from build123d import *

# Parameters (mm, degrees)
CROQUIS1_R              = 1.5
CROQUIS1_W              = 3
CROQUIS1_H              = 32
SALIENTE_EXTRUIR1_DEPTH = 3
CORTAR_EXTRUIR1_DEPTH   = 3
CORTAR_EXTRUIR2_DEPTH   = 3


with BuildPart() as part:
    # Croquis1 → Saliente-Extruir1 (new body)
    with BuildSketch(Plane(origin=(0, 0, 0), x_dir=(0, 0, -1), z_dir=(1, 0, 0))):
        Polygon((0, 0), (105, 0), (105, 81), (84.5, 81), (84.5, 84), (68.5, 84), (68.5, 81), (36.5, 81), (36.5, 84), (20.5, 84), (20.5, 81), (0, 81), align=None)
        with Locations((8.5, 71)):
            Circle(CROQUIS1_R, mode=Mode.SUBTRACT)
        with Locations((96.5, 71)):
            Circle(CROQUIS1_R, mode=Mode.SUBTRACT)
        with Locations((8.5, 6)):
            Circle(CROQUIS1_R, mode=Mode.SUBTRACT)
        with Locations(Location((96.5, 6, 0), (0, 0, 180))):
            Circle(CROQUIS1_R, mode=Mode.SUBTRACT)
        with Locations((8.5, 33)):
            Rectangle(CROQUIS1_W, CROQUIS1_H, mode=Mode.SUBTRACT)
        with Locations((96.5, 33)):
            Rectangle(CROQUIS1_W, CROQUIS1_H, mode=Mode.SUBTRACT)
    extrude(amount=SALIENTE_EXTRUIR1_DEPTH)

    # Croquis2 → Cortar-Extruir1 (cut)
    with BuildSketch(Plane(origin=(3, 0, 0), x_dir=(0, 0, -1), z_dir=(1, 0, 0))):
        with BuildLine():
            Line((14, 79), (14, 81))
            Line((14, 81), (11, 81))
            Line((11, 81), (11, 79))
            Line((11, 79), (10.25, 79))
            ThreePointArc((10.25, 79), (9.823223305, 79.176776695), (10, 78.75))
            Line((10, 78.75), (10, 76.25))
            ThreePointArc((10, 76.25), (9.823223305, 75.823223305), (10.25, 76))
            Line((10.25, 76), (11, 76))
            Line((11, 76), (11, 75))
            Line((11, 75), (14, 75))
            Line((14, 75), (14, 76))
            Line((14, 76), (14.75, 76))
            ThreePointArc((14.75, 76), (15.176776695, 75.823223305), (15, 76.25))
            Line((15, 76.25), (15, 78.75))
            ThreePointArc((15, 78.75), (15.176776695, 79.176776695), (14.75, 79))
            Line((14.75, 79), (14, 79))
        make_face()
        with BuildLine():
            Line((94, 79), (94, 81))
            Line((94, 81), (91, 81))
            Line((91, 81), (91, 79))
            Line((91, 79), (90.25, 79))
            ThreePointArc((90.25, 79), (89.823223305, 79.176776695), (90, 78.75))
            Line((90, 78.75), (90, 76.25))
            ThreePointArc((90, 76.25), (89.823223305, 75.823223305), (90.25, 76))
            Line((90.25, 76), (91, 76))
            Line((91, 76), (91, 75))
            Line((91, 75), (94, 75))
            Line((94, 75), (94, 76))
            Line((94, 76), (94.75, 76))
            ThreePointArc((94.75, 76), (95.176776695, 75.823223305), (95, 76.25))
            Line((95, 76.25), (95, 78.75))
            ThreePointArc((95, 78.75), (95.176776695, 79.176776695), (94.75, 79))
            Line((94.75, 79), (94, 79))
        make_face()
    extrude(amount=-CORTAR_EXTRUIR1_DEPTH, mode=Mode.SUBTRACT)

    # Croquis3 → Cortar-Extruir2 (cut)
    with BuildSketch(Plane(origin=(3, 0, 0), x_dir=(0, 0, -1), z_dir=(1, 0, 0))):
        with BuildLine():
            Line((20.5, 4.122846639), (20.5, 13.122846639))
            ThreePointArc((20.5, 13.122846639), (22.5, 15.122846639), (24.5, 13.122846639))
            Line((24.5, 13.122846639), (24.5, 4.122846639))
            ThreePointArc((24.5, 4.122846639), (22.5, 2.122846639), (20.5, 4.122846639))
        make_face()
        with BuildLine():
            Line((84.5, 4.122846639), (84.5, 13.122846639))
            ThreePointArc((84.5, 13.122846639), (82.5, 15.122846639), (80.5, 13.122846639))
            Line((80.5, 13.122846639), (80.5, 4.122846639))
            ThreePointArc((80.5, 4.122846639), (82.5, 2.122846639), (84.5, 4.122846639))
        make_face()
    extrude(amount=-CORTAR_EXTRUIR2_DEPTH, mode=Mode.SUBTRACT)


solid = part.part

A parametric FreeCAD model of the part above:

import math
import FreeCAD as App
import Part
import Sketcher

doc = App.newDocument("Part")
body = doc.addObject("PartDesign::Body", "Body")

sketch1 = body.newObject("Sketcher::SketchObject", "Sketch")
sketch1.AttachmentSupport = (doc.getObject("YZ_Plane"), [""])
sketch1.MapMode = "FlatFace"
sketch1.addGeometry([
    Part.LineSegment(App.Vector(0, 0, 0), App.Vector(0, -105, 0)),
    Part.LineSegment(App.Vector(0, -105, 0), App.Vector(81, -105, 0)),
    Part.LineSegment(App.Vector(81, -105, 0), App.Vector(81, -84.5, 0)),
    Part.LineSegment(App.Vector(81, -84.5, 0), App.Vector(84, -84.5, 0)),
    Part.LineSegment(App.Vector(84, -84.5, 0), App.Vector(84, -68.5, 0)),
    Part.LineSegment(App.Vector(84, -68.5, 0), App.Vector(81, -68.5, 0)),
    Part.LineSegment(App.Vector(81, -68.5, 0), App.Vector(81, -36.5, 0)),
    Part.LineSegment(App.Vector(81, -36.5, 0), App.Vector(84, -36.5, 0)),
    Part.LineSegment(App.Vector(84, -36.5, 0), App.Vector(84, -20.5, 0)),
    Part.LineSegment(App.Vector(84, -20.5, 0), App.Vector(81, -20.5, 0)),
    Part.LineSegment(App.Vector(81, -20.5, 0), App.Vector(81, 0, 0)),
    Part.LineSegment(App.Vector(81, 0, 0), App.Vector(0, 0, 0)),
    Part.Circle(App.Vector(6, -8.5, 0), App.Vector(0, 0, 1), 1.5),
    Part.LineSegment(App.Vector(17, -10, 0), App.Vector(17, -7, 0)),
    Part.LineSegment(App.Vector(17, -7, 0), App.Vector(49, -7, 0)),
    Part.LineSegment(App.Vector(49, -7, 0), App.Vector(49, -10, 0)),
    Part.LineSegment(App.Vector(49, -10, 0), App.Vector(17, -10, 0)),
    Part.Circle(App.Vector(6, -96.5, 0), App.Vector(0, 0, 1), 1.5),
    Part.LineSegment(App.Vector(17, -98, 0), App.Vector(17, -95, 0)),
    Part.LineSegment(App.Vector(17, -95, 0), App.Vector(49, -95, 0)),
    Part.LineSegment(App.Vector(49, -95, 0), App.Vector(49, -98, 0)),
    Part.LineSegment(App.Vector(49, -98, 0), App.Vector(17, -98, 0)),
    Part.Circle(App.Vector(71, -8.5, 0), App.Vector(0, 0, 1), 1.5),
    Part.Circle(App.Vector(71, -96.5, 0), App.Vector(0, 0, 1), 1.5),
], False)
sketch1.addConstraint([
    Sketcher.Constraint("Coincident", 0, 2, 1, 1),
    Sketcher.Constraint("Coincident", 1, 2, 2, 1),
    Sketcher.Constraint("Coincident", 2, 2, 3, 1),
    Sketcher.Constraint("Coincident", 3, 2, 4, 1),
    Sketcher.Constraint("Coincident", 4, 2, 5, 1),
    Sketcher.Constraint("Coincident", 5, 2, 6, 1),
    Sketcher.Constraint("Coincident", 6, 2, 7, 1),
    Sketcher.Constraint("Coincident", 7, 2, 8, 1),
    Sketcher.Constraint("Coincident", 8, 2, 9, 1),
    Sketcher.Constraint("Coincident", 9, 2, 10, 1),
    Sketcher.Constraint("Coincident", 10, 2, 11, 1),
    Sketcher.Constraint("Coincident", 11, 2, 0, 1),
    Sketcher.Constraint("Coincident", 13, 2, 14, 1),
    Sketcher.Constraint("Coincident", 14, 2, 15, 1),
    Sketcher.Constraint("Coincident", 15, 2, 16, 1),
    Sketcher.Constraint("Coincident", 16, 2, 13, 1),
    Sketcher.Constraint("Coincident", 18, 2, 19, 1),
    Sketcher.Constraint("Coincident", 19, 2, 20, 1),
    Sketcher.Constraint("Coincident", 20, 2, 21, 1),
    Sketcher.Constraint("Coincident", 21, 2, 18, 1),
    Sketcher.Constraint("Vertical", 0),
    Sketcher.Constraint("Horizontal", 1),
    Sketcher.Constraint("Vertical", 2),
    Sketcher.Constraint("Horizontal", 3),
    Sketcher.Constraint("Vertical", 4),
    Sketcher.Constraint("Horizontal", 5),
    Sketcher.Constraint("Vertical", 6),
    Sketcher.Constraint("Horizontal", 7),
    Sketcher.Constraint("Vertical", 8),
    Sketcher.Constraint("Horizontal", 9),
    Sketcher.Constraint("Vertical", 10),
    Sketcher.Constraint("Horizontal", 11),
    Sketcher.Constraint("Vertical", 13),
    Sketcher.Constraint("Horizontal", 14),
    Sketcher.Constraint("Vertical", 15),
    Sketcher.Constraint("Horizontal", 16),
    Sketcher.Constraint("Vertical", 18),
    Sketcher.Constraint("Horizontal", 19),
    Sketcher.Constraint("Vertical", 20),
    Sketcher.Constraint("Horizontal", 21),
    Sketcher.Constraint("Coincident", 11, 2, -1, 1),
    Sketcher.Constraint("Equal", 12, 17),
    Sketcher.Constraint("Equal", 17, 22),
    Sketcher.Constraint("Equal", 22, 23),
    Sketcher.Constraint("Horizontal", 12, 3, 22, 3),
    Sketcher.Constraint("Horizontal", 17, 3, 23, 3),
    Sketcher.Constraint("Vertical", 12, 3, 17, 3),
    Sketcher.Constraint("Vertical", 22, 3, 23, 3),
    Sketcher.Constraint("Vertical", 2, 2, 5, 2),
    Sketcher.Constraint("Vertical", 4, 2, 7, 2),
    Sketcher.Constraint("Vertical", 6, 2, 9, 2),
    Sketcher.Constraint("Vertical", 16, 2, 18, 2),
    Sketcher.Constraint("Vertical", 15, 2, 19, 2),
    Sketcher.Constraint("Equal", 21, 6),
    Sketcher.Constraint("Equal", 4, 8),
    Sketcher.Constraint("Equal", 2, 10),
    Sketcher.Constraint("Equal", 9, 13),
    Sketcher.Constraint("Equal", 15, 18),
    Sketcher.Constraint("Diameter", 12, 3.0),
    Sketcher.Constraint("DistanceX", 1, 1, 1, 2, 81.0),
    Sketcher.Constraint("DistanceX", 3, 1, 3, 2, 3.0),
    Sketcher.Constraint("DistanceX", 14, 1, 14, 2, 32.0),
    Sketcher.Constraint("DistanceY", 0, 2, 0, 1, 105.0),
    Sketcher.Constraint("DistanceY", 4, 1, 4, 2, 16.0),
    Sketcher.Constraint("DistanceX", -1, 1, 12, 3, 6.0),
    Sketcher.Constraint("DistanceX", -1, 1, 22, 3, 71.0),
    Sketcher.Constraint("DistanceX", -1, 1, 13, 2, 17.0),
    Sketcher.Constraint("DistanceY", 13, 2, -1, 1, 7.0),
    Sketcher.Constraint("DistanceY", 18, 2, -1, 1, 95.0),
    Sketcher.Constraint("DistanceY", 17, 3, 12, 3, 88.0),
    Sketcher.Constraint("DistanceY", 23, 3, 2, 2, 12.0),
])
pad1 = body.newObject("PartDesign::Pad", "Pad")
pad1.Profile = sketch1
pad1.Length = 3

sketch2 = body.newObject("Sketcher::SketchObject", "Sketch001")
sketch2.AttachmentSupport = (doc.getObject("YZ_Plane"), [""])
sketch2.MapMode = "FlatFace"
sketch2.AttachmentOffset = App.Placement(App.Vector(0, 0, 3), App.Rotation())
sketch2.addGeometry([
    Part.LineSegment(App.Vector(79, -14, 0), App.Vector(81, -14, 0)),
    Part.LineSegment(App.Vector(81, -14, 0), App.Vector(81, -11, 0)),
    Part.LineSegment(App.Vector(81, -11, 0), App.Vector(79, -11, 0)),
    Part.LineSegment(App.Vector(79, -11, 0), App.Vector(79, -10.25, 0)),
    Part.ArcOfCircle(Part.Circle(App.Vector(79, -10, 0), App.Vector(0, 0, 1), 0.25), math.radians(-90), math.radians(180)),
    Part.LineSegment(App.Vector(78.75, -10, 0), App.Vector(76.25, -10, 0)),
    Part.ArcOfCircle(Part.Circle(App.Vector(76, -10, 0), App.Vector(0, 0, 1), 0.25), math.radians(0), math.radians(270)),
    Part.LineSegment(App.Vector(76, -10.25, 0), App.Vector(76, -11, 0)),
    Part.LineSegment(App.Vector(76, -11, 0), App.Vector(75, -11, 0)),
    Part.LineSegment(App.Vector(75, -11, 0), App.Vector(75, -14, 0)),
    Part.LineSegment(App.Vector(75, -14, 0), App.Vector(76, -14, 0)),
    Part.LineSegment(App.Vector(76, -14, 0), App.Vector(76, -14.75, 0)),
    Part.ArcOfCircle(Part.Circle(App.Vector(76, -15, 0), App.Vector(0, 0, 1), 0.25), math.radians(90), math.radians(360)),
    Part.LineSegment(App.Vector(76.25, -15, 0), App.Vector(78.75, -15, 0)),
    Part.ArcOfCircle(Part.Circle(App.Vector(79, -15, 0), App.Vector(0, 0, 1), 0.25), math.radians(180), math.radians(450)),
    Part.LineSegment(App.Vector(79, -14.75, 0), App.Vector(79, -14, 0)),
    Part.LineSegment(App.Vector(79, -94, 0), App.Vector(81, -94, 0)),
    Part.LineSegment(App.Vector(81, -94, 0), App.Vector(81, -91, 0)),
    Part.LineSegment(App.Vector(81, -91, 0), App.Vector(79, -91, 0)),
    Part.LineSegment(App.Vector(79, -91, 0), App.Vector(79, -90.25, 0)),
    Part.ArcOfCircle(Part.Circle(App.Vector(79, -90, 0), App.Vector(0, 0, 1), 0.25), math.radians(-90), math.radians(180)),
    Part.LineSegment(App.Vector(78.75, -90, 0), App.Vector(76.25, -90, 0)),
    Part.ArcOfCircle(Part.Circle(App.Vector(76, -90, 0), App.Vector(0, 0, 1), 0.25), math.radians(0), math.radians(270)),
    Part.LineSegment(App.Vector(76, -90.25, 0), App.Vector(76, -91, 0)),
    Part.LineSegment(App.Vector(76, -91, 0), App.Vector(75, -91, 0)),
    Part.LineSegment(App.Vector(75, -91, 0), App.Vector(75, -94, 0)),
    Part.LineSegment(App.Vector(75, -94, 0), App.Vector(76, -94, 0)),
    Part.LineSegment(App.Vector(76, -94, 0), App.Vector(76, -94.75, 0)),
    Part.ArcOfCircle(Part.Circle(App.Vector(76, -95, 0), App.Vector(0, 0, 1), 0.25), math.radians(90), math.radians(360)),
    Part.LineSegment(App.Vector(76.25, -95, 0), App.Vector(78.75, -95, 0)),
    Part.ArcOfCircle(Part.Circle(App.Vector(79, -95, 0), App.Vector(0, 0, 1), 0.25), math.radians(180), math.radians(450)),
    Part.LineSegment(App.Vector(79, -94.75, 0), App.Vector(79, -94, 0)),
], False)
sketch2.addConstraint([
    Sketcher.Constraint("Coincident", 0, 2, 1, 1),
    Sketcher.Constraint("Coincident", 1, 2, 2, 1),
    Sketcher.Constraint("Coincident", 2, 2, 3, 1),
    Sketcher.Constraint("Coincident", 3, 2, 4, 1),
    Sketcher.Constraint("Coincident", 4, 2, 5, 1),
    Sketcher.Constraint("Coincident", 5, 2, 6, 1),
    Sketcher.Constraint("Coincident", 6, 2, 7, 1),
    Sketcher.Constraint("Coincident", 7, 2, 8, 1),
    Sketcher.Constraint("Coincident", 8, 2, 9, 1),
    Sketcher.Constraint("Coincident", 9, 2, 10, 1),
    Sketcher.Constraint("Coincident", 10, 2, 11, 1),
    Sketcher.Constraint("Coincident", 11, 2, 12, 1),
    Sketcher.Constraint("Coincident", 12, 2, 13, 1),
    Sketcher.Constraint("Coincident", 13, 2, 14, 1),
    Sketcher.Constraint("Coincident", 14, 2, 15, 1),
    Sketcher.Constraint("Coincident", 15, 2, 0, 1),
    Sketcher.Constraint("Coincident", 16, 2, 17, 1),
    Sketcher.Constraint("Coincident", 17, 2, 18, 1),
    Sketcher.Constraint("Coincident", 18, 2, 19, 1),
    Sketcher.Constraint("Coincident", 19, 2, 20, 1),
    Sketcher.Constraint("Coincident", 20, 2, 21, 1),
    Sketcher.Constraint("Coincident", 21, 2, 22, 1),
    Sketcher.Constraint("Coincident", 22, 2, 23, 1),
    Sketcher.Constraint("Coincident", 23, 2, 24, 1),
    Sketcher.Constraint("Coincident", 24, 2, 25, 1),
    Sketcher.Constraint("Coincident", 25, 2, 26, 1),
    Sketcher.Constraint("Coincident", 26, 2, 27, 1),
    Sketcher.Constraint("Coincident", 27, 2, 28, 1),
    Sketcher.Constraint("Coincident", 28, 2, 29, 1),
    Sketcher.Constraint("Coincident", 29, 2, 30, 1),
    Sketcher.Constraint("Coincident", 30, 2, 31, 1),
    Sketcher.Constraint("Coincident", 31, 2, 16, 1),
    Sketcher.Constraint("Horizontal", 0),
    Sketcher.Constraint("Vertical", 1),
    Sketcher.Constraint("Horizontal", 2),
    Sketcher.Constraint("Vertical", 3),
    Sketcher.Constraint("Horizontal", 5),
    Sketcher.Constraint("Vertical", 7),
    Sketcher.Constraint("Horizontal", 8),
    Sketcher.Constraint("Vertical", 9),
    Sketcher.Constraint("Horizontal", 10),
    Sketcher.Constraint("Vertical", 11),
    Sketcher.Constraint("Horizontal", 13),
    Sketcher.Constraint("Vertical", 15),
    Sketcher.Constraint("Horizontal", 16),
    Sketcher.Constraint("Vertical", 17),
    Sketcher.Constraint("Horizontal", 18),
    Sketcher.Constraint("Vertical", 19),
    Sketcher.Constraint("Horizontal", 21),
    Sketcher.Constraint("Vertical", 23),
    Sketcher.Constraint("Horizontal", 24),
    Sketcher.Constraint("Vertical", 25),
    Sketcher.Constraint("Horizontal", 26),
    Sketcher.Constraint("Vertical", 27),
    Sketcher.Constraint("Horizontal", 29),
    Sketcher.Constraint("Vertical", 31),
    Sketcher.Constraint("Equal", 4, 6),
    Sketcher.Constraint("Equal", 6, 12),
    Sketcher.Constraint("Equal", 12, 14),
    Sketcher.Constraint("Equal", 14, 20),
    Sketcher.Constraint("Equal", 20, 22),
    Sketcher.Constraint("Equal", 22, 28),
    Sketcher.Constraint("Equal", 28, 30),
    Sketcher.Constraint("Horizontal", 4, 3, 6, 3),
    Sketcher.Constraint("Horizontal", 12, 3, 14, 3),
    Sketcher.Constraint("Horizontal", 20, 3, 22, 3),
    Sketcher.Constraint("Horizontal", 28, 3, 30, 3),
    Sketcher.Constraint("Horizontal", 6, 3, 4, 2),
    Sketcher.Constraint("Horizontal", 2, 2, 7, 2),
    Sketcher.Constraint("Horizontal", 0, 2, 9, 2),
    Sketcher.Constraint("Horizontal", 14, 3, 12, 2),
    Sketcher.Constraint("Horizontal", 22, 3, 20, 2),
    Sketcher.Constraint("Horizontal", 18, 2, 23, 2),
    Sketcher.Constraint("Horizontal", 16, 2, 25, 2),
    Sketcher.Constraint("Horizontal", 30, 3, 28, 2),
    Sketcher.Constraint("Vertical", 6, 3, 12, 3),
    Sketcher.Constraint("Vertical", 4, 3, 14, 3),
    Sketcher.Constraint("Vertical", 14, 3, 20, 3),
    Sketcher.Constraint("Vertical", 12, 3, 22, 3),
    Sketcher.Constraint("Vertical", 22, 3, 28, 3),
    Sketcher.Constraint("Vertical", 20, 3, 30, 3),
    Sketcher.Constraint("Vertical", 30, 3, 2, 2),
    Sketcher.Constraint("Vertical", 28, 3, 6, 2),
    Sketcher.Constraint("Vertical", 7, 2, 10, 2),
    Sketcher.Constraint("Vertical", 3, 2, 14, 2),
    Sketcher.Constraint("Vertical", 1, 2, 16, 2),
    Sketcher.Constraint("Vertical", 15, 2, 18, 2),
    Sketcher.Constraint("Vertical", 11, 2, 22, 2),
    Sketcher.Constraint("Vertical", 9, 2, 24, 2),
    Sketcher.Constraint("Vertical", 23, 2, 26, 2),
    Sketcher.Constraint("Vertical", 19, 2, 30, 2),
    Sketcher.Constraint("Equal", 7, 11),
    Sketcher.Constraint("Equal", 9, 17),
    Sketcher.Constraint("Equal", 15, 19),
    Sketcher.Constraint("Equal", 23, 27),
    Sketcher.Constraint("DistanceX", 0, 1, 0, 2, 2.0),
    Sketcher.Constraint("DistanceX", 8, 2, 8, 1, 1.0),
    Sketcher.Constraint("DistanceY", 1, 1, 1, 2, 3.0),
    Sketcher.Constraint("Radius", 4, 0.25),
    Sketcher.Constraint("DistanceX", 5, 2, 5, 1, 2.5),
    Sketcher.Constraint("DistanceX", -1, 1, 4, 3, 79.0),
    Sketcher.Constraint("DistanceY", 4, 3, -1, 1, 10.0),
    Sketcher.Constraint("DistanceY", 12, 3, -1, 1, 15.0),
    Sketcher.Constraint("DistanceY", 20, 3, -1, 1, 90.0),
])
pocket1 = body.newObject("PartDesign::Pocket", "Pocket")
pocket1.Profile = sketch2
pocket1.Length = 3

sketch3 = body.newObject("Sketcher::SketchObject", "Sketch002")
sketch3.AttachmentSupport = (doc.getObject("YZ_Plane"), [""])
sketch3.MapMode = "FlatFace"
sketch3.AttachmentOffset = App.Placement(App.Vector(0, 0, 3), App.Rotation())
sketch3.addGeometry([
    Part.LineSegment(App.Vector(13.1, -20.5, 0), App.Vector(4.1, -20.5, 0)),
    Part.ArcOfCircle(Part.Circle(App.Vector(4.1, -22.5, 0), App.Vector(0, 0, 1), 2), math.radians(90), math.radians(270)),
    Part.LineSegment(App.Vector(4.1, -24.5, 0), App.Vector(13.1, -24.5, 0)),
    Part.ArcOfCircle(Part.Circle(App.Vector(13.1, -22.5, 0), App.Vector(0, 0, 1), 2), math.radians(-90), math.radians(90)),
    Part.LineSegment(App.Vector(4.1, -84.5, 0), App.Vector(13.1, -84.5, 0)),
    Part.ArcOfCircle(Part.Circle(App.Vector(13.1, -82.5, 0), App.Vector(0, 0, 1), 2), math.radians(-90), math.radians(90)),
    Part.LineSegment(App.Vector(13.1, -80.5, 0), App.Vector(4.1, -80.5, 0)),
    Part.ArcOfCircle(Part.Circle(App.Vector(4.1, -82.5, 0), App.Vector(0, 0, 1), 2), math.radians(90), math.radians(270)),
], False)
sketch3.addConstraint([
    Sketcher.Constraint("Tangent", 0, 2, 1, 1),
    Sketcher.Constraint("Tangent", 1, 2, 2, 1),
    Sketcher.Constraint("Tangent", 2, 2, 3, 1),
    Sketcher.Constraint("Tangent", 3, 2, 0, 1),
    Sketcher.Constraint("Tangent", 4, 2, 5, 1),
    Sketcher.Constraint("Tangent", 5, 2, 6, 1),
    Sketcher.Constraint("Tangent", 6, 2, 7, 1),
    Sketcher.Constraint("Tangent", 7, 2, 4, 1),
    Sketcher.Constraint("Horizontal", 0),
    Sketcher.Constraint("Horizontal", 2),
    Sketcher.Constraint("Horizontal", 4),
    Sketcher.Constraint("Horizontal", 6),
    Sketcher.Constraint("Equal", 3, 5),
    Sketcher.Constraint("Vertical", 3, 3, 5, 3),
    Sketcher.Constraint("Vertical", 1, 3, 7, 3),
    Sketcher.Constraint("Radius", 1, 2.0),
    Sketcher.Constraint("DistanceX", 0, 2, 0, 1, 9.0),
    Sketcher.Constraint("DistanceY", 5, 3, 3, 3, 60.0),
    Sketcher.Constraint("DistanceY", 1, 3, -1, 1, 22.5),
    Sketcher.Constraint("DistanceX", -1, 1, 1, 3, 4.122847),
])
pocket2 = body.newObject("PartDesign::Pocket", "Pocket001")
pocket2.Profile = sketch3
pocket2.Length = 3

doc.recompute()
